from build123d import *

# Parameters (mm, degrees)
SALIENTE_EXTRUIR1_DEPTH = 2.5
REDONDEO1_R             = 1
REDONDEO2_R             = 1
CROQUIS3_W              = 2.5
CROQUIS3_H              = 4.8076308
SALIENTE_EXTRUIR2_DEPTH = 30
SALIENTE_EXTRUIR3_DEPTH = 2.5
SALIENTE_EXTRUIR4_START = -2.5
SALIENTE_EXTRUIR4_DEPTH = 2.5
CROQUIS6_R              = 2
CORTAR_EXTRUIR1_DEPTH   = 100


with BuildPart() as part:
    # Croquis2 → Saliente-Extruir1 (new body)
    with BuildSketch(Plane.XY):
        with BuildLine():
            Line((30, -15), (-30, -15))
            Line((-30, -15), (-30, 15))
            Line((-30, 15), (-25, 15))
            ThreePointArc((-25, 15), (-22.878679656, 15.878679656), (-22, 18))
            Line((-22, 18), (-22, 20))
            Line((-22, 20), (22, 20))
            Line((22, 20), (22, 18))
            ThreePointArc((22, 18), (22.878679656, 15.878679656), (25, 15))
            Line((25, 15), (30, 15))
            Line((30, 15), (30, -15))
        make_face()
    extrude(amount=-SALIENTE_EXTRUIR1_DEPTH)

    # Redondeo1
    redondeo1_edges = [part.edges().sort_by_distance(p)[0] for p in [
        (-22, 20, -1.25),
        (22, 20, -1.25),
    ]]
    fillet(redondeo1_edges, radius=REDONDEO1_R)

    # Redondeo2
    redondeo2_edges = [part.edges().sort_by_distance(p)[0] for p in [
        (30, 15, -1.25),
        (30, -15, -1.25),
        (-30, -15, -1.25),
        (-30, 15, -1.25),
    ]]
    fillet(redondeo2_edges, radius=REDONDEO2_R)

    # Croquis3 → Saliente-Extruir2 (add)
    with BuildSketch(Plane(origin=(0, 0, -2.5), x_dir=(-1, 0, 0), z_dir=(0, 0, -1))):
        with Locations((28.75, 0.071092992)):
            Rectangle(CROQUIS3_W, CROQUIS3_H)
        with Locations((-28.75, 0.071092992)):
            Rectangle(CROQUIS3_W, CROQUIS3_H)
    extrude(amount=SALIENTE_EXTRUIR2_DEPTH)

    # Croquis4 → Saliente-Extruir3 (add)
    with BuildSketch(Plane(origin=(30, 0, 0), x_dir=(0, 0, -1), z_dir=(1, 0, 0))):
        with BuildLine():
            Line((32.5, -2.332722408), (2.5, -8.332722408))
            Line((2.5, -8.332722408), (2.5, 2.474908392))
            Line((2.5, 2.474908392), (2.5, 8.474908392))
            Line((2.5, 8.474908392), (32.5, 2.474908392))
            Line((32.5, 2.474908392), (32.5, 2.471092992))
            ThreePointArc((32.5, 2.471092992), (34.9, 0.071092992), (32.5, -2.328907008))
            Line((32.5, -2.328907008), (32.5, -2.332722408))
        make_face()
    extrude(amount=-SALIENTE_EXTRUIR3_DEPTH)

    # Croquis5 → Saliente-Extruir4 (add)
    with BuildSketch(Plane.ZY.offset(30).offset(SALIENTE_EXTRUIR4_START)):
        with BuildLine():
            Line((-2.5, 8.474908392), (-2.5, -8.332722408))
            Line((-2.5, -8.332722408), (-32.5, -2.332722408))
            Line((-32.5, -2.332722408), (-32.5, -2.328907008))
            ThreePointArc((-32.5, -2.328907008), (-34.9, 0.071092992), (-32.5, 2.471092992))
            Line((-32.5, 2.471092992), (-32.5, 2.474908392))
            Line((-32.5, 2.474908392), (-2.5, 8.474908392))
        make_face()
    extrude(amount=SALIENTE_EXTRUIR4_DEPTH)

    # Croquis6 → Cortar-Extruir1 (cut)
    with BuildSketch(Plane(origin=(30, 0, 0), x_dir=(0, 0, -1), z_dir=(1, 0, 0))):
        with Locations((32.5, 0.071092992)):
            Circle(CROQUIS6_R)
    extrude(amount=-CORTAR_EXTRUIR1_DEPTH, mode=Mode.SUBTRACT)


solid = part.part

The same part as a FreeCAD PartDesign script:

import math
import FreeCAD as App
import Part
import Sketcher
from FreeCAD import Vector


def edges_at(feature, points):
    """Names of the edges that pass closest to the given points."""
    edges = feature.Shape.Edges
    near = lambda p: min(range(len(edges)), key=lambda i: edges[i].distToShape(Part.Vertex(*p))[0])
    return sorted({f"Edge{near(p) + 1}" for p in points})


def add_polygon(sketch, points):
    """Adds a closed chain of lines whose ends are joined by coincident constraints."""
    first, n = sketch.GeometryCount, len(points)
    for a, b in zip(points, points[1:] + points[:1]):
        sketch.addGeometry(Part.LineSegment(App.Vector(*a, 0), App.Vector(*b, 0)), False)
    for i in range(n):
        sketch.addConstraint(Sketcher.Constraint("Coincident", first + i, 2, first + (i + 1) % n, 1))

doc = App.newDocument("Part")
body = doc.addObject("PartDesign::Body", "Body")

sketch1 = body.newObject("Sketcher::SketchObject", "Sketch")
sketch1.AttachmentSupport = (doc.getObject("XY_Plane"), [""])
sketch1.MapMode = "FlatFace"
sketch1.addGeometry(Part.LineSegment(Vector(-30, -15, 0), Vector(30, -15, 0)), False)
sketch1.addGeometry(Part.LineSegment(Vector(30, -15, 0), Vector(30, 15, 0)), False)
sketch1.addGeometry(Part.LineSegment(Vector(30, 15, 0), Vector(25, 15, 0)), False)
sketch1.addGeometry(Part.ArcOfCircle(Part.Circle(Vector(25, 18, 0), Vector(0, 0, 1), 3), math.radians(180), math.radians(270)), False)
sketch1.addGeometry(Part.LineSegment(Vector(22, 18, 0), Vector(22, 20, 0)), False)
sketch1.addGeometry(Part.LineSegment(Vector(22, 20, 0), Vector(-22, 20, 0)), False)
sketch1.addGeometry(Part.LineSegment(Vector(-22, 20, 0), Vector(-22, 18, 0)), False)
sketch1.addGeometry(Part.ArcOfCircle(Part.Circle(Vector(-25, 18, 0), Vector(0, 0, 1), 3), math.radians(-90), math.radians(0)), False)
sketch1.addGeometry(Part.LineSegment(Vector(-25, 15, 0), Vector(-30, 15, 0)), False)
sketch1.addGeometry(Part.LineSegment(Vector(-30, 15, 0), Vector(-30, -15, 0)), False)
sketch1.addConstraint(Sketcher.Constraint("Coincident", 0, 2, 1, 1))
sketch1.addConstraint(Sketcher.Constraint("Coincident", 1, 2, 2, 1))
sketch1.addConstraint(Sketcher.Constraint("Tangent", 2, 2, 3, 2))
sketch1.addConstraint(Sketcher.Constraint("Tangent", 3, 1, 4, 1))
sketch1.addConstraint(Sketcher.Constraint("Coincident", 4, 2, 5, 1))
sketch1.addConstraint(Sketcher.Constraint("Coincident", 5, 2, 6, 1))
sketch1.addConstraint(Sketcher.Constraint("Tangent", 6, 2, 7, 2))
sketch1.addConstraint(Sketcher.Constraint("Tangent", 7, 1, 8, 1))
sketch1.addConstraint(Sketcher.Constraint("Coincident", 8, 2, 9, 1))
sketch1.addConstraint(Sketcher.Constraint("Coincident", 9, 2, 0, 1))
sketch1.addConstraint(Sketcher.Constraint("Horizontal", 0))
sketch1.addConstraint(Sketcher.Constraint("Vertical", 1))
sketch1.addConstraint(Sketcher.Constraint("Horizontal", 2))
sketch1.addConstraint(Sketcher.Constraint("Vertical", 4))
sketch1.addConstraint(Sketcher.Constraint("Horizontal", 5))
sketch1.addConstraint(Sketcher.Constraint("Vertical", 6))
sketch1.addConstraint(Sketcher.Constraint("Horizontal", 8))
sketch1.addConstraint(Sketcher.Constraint("Vertical", 9))
sketch1.addConstraint(Sketcher.Constraint("Equal", 3, 7))
sketch1.addConstraint(Sketcher.Constraint("Symmetric", 0, 2, 8, 2, -1, 1))
sketch1.addConstraint(Sketcher.Constraint("Symmetric", 3, 3, 7, 3, -2))
sketch1.addConstraint(Sketcher.Constraint("Radius", 3, 3.0))
sketch1.addConstraint(Sketcher.Constraint("DistanceX", 0, 1, 0, 2, 60.0))
sketch1.addConstraint(Sketcher.Constraint("DistanceX", 2, 2, 2, 1, 5.0))
sketch1.addConstraint(Sketcher.Constraint("DistanceY", 1, 1, 1, 2, 30.0))
sketch1.addConstraint(Sketcher.Constraint("DistanceY", 4, 1, 4, 2, 2.0))
pad1 = body.newObject("PartDesign::Pad", "Pad")
pad1.Profile = sketch1
pad1.Length = 2.5
pad1.Reversed = True
doc.recompute()

fillet = body.newObject("PartDesign::Fillet", "Fillet")
fillet.Base = (pad1, edges_at(pad1, [(-22, 20, -1.25), (22, 20, -1.25)]))
fillet.Radius = 1
doc.recompute()

fillet2 = body.newObject("PartDesign::Fillet", "Fillet001")
fillet2.Base = (fillet, edges_at(fillet, [
    (30, 15, -1.25),
    (30, -15, -1.25),
    (-30, -15, -1.25),
    (-30, 15, -1.25),
]))
fillet2.Radius = 1

sketch2 = body.newObject("Sketcher::SketchObject", "Sketch001")
sketch2.AttachmentSupport = (doc.getObject("XY_Plane"), [""])
sketch2.MapMode = "FlatFace"
sketch2.AttachmentOffset = App.Placement(Vector(0, 0, -2.5), App.Rotation())
add_polygon(sketch2, [(-27.5, 2.5), (-27.5, -2.3), (-30, -2.3), (-30, 2.5)])
add_polygon(sketch2, [(30, 2.5), (30, -2.3), (27.5, -2.3), (27.5, 2.5)])
sketch2.addConstraint(Sketcher.Constraint("Vertical", 0))
sketch2.addConstraint(Sketcher.Constraint("Horizontal", 1))
sketch2.addConstraint(Sketcher.Constraint("Vertical", 2))
sketch2.addConstraint(Sketcher.Constraint("Horizontal", 3))
sketch2.addConstraint(Sketcher.Constraint("Vertical", 4))
sketch2.addConstraint(Sketcher.Constraint("Horizontal", 5))
sketch2.addConstraint(Sketcher.Constraint("Vertical", 6))
sketch2.addConstraint(Sketcher.Constraint("Horizontal", 7))
sketch2.addConstraint(Sketcher.Constraint("Symmetric", 1, 2, 4, 2, -2))
sketch2.addConstraint(Sketcher.Constraint("Symmetric", 3, 2, 6, 2, -2))
sketch2.addConstraint(Sketcher.Constraint("DistanceX", 1, 2, 1, 1, 2.5))
sketch2.addConstraint(Sketcher.Constraint("DistanceX", 1, 2, -1, 1, 30.0))
sketch2.addConstraint(Sketcher.Constraint("DistanceY", 0, 2, 0, 1, 4.807631))
sketch2.addConstraint(Sketcher.Constraint("DistanceY", -1, 1, 2, 2, 2.474908))
pad2 = body.newObject("PartDesign::Pad", "Pad001")
pad2.Profile = sketch2
pad2.Length = 30
pad2.Reversed = True

sketch3 = body.newObject("Sketcher::SketchObject", "Sketch002")
sketch3.AttachmentSupport = (doc.getObject("YZ_Plane"), [""])
sketch3.MapMode = "FlatFace"
sketch3.AttachmentOffset = App.Placement(Vector(0, 0, 30), App.Rotation())
sketch3.addGeometry(Part.LineSegment(Vector(-8.3327, -2.5, 0), Vector(-2.3327, -32.5, 0)), False)
sketch3.addGeometry(Part.LineSegment(Vector(-2.3327, -32.5, 0), Vector(-2.3289, -32.5, 0)), False)
sketch3.addGeometry(Part.ArcOfCircle(Part.Circle(Vector(0.0711, -32.5, 0), Vector(0, 0, 1), 2.4), math.radians(180), math.radians(360)), False)
sketch3.addGeometry(Part.LineSegment(Vector(2.4711, -32.5, 0), Vector(2.4749, -32.5, 0)), False)
sketch3.addGeometry(Part.LineSegment(Vector(2.4749, -32.5, 0), Vector(8.4749, -2.5, 0)), False)
sketch3.addGeometry(Part.LineSegment(Vector(8.4749, -2.5, 0), Vector(-8.3327, -2.5, 0)), False)
sketch3.addConstraint(Sketcher.Constraint("Coincident", 0, 2, 1, 1))
sketch3.addConstraint(Sketcher.Constraint("Coincident", 1, 2, 2, 1))
sketch3.addConstraint(Sketcher.Constraint("Coincident", 2, 2, 3, 1))
sketch3.addConstraint(Sketcher.Constraint("Coincident", 3, 2, 4, 1))
sketch3.addConstraint(Sketcher.Constraint("Coincident", 4, 2, 5, 1))
sketch3.addConstraint(Sketcher.Constraint("Coincident", 5, 2, 0, 1))
sketch3.addConstraint(Sketcher.Constraint("Horizontal", 1))
sketch3.addConstraint(Sketcher.Constraint("Horizontal", 3))
sketch3.addConstraint(Sketcher.Constraint("Horizontal", 5))
sketch3.addConstraint(Sketcher.Constraint("Horizontal", 2, 3, 0, 2))
sketch3.addConstraint(Sketcher.Constraint("Horizontal", 1, 2, 2, 2))
sketch3.addConstraint(Sketcher.Constraint("Equal", 1, 3))
sketch3.addConstraint(Sketcher.Constraint("Equal", 0, 4))
sketch3.addConstraint(Sketcher.Constraint("Radius", 2, 2.4))
sketch3.addConstraint(Sketcher.Constraint("DistanceX", 3, 2, 4, 2, 6.0))
sketch3.addConstraint(Sketcher.Constraint("DistanceY", 3, 2, 4, 2, 30.0))
sketch3.addConstraint(Sketcher.Constraint("DistanceY", 2, 3, -1, 1, 32.5))
sketch3.addConstraint(Sketcher.Constraint("DistanceX", 5, 2, 5, 1, 16.807631))
sketch3.addConstraint(Sketcher.Constraint("DistanceX", -1, 1, 3, 2, 2.474908))
pad3 = body.newObject("PartDesign::Pad", "Pad002")
pad3.Profile = sketch3
pad3.Length = 2.5
pad3.Reversed = True

sketch4 = body.newObject("Sketcher::SketchObject", "Sketch003")
sketch4.AttachmentSupport = (doc.getObject("YZ_Plane"), [""])
sketch4.MapMode = "FlatFace"
sketch4.AttachmentOffset = App.Placement(Vector(0, 0, -27.5), App.Rotation())
sketch4.addGeometry(Part.LineSegment(Vector(-8.3327, -2.5, 0), Vector(8.4749, -2.5, 0)), False)
sketch4.addGeometry(Part.LineSegment(Vector(8.4749, -2.5, 0), Vector(2.4749, -32.5, 0)), False)
sketch4.addGeometry(Part.LineSegment(Vector(2.4749, -32.5, 0), Vector(2.4711, -32.5, 0)), False)
sketch4.addGeometry(Part.ArcOfCircle(Part.Circle(Vector(0.0711, -32.5, 0), Vector(0, 0, 1), 2.4), math.radians(180), math.radians(360)), False)
sketch4.addGeometry(Part.LineSegment(Vector(-2.3289, -32.5, 0), Vector(-2.3327, -32.5, 0)), False)
sketch4.addGeometry(Part.LineSegment(Vector(-2.3327, -32.5, 0), Vector(-8.3327, -2.5, 0)), False)
sketch4.addConstraint(Sketcher.Constraint("Coincident", 0, 2, 1, 1))
sketch4.addConstraint(Sketcher.Constraint("Coincident", 1, 2, 2, 1))
sketch4.addConstraint(Sketcher.Constraint("Coincident", 2, 2, 3, 2))
sketch4.addConstraint(Sketcher.Constraint("Coincident", 3, 1, 4, 1))
sketch4.addConstraint(Sketcher.Constraint("Coincident", 4, 2, 5, 1))
sketch4.addConstraint(Sketcher.Constraint("Coincident", 5, 2, 0, 1))
sketch4.addConstraint(Sketcher.Constraint("Horizontal", 0))
sketch4.addConstraint(Sketcher.Constraint("Horizontal", 2))
sketch4.addConstraint(Sketcher.Constraint("Horizontal", 4))
sketch4.addConstraint(Sketcher.Constraint("Horizontal", 3, 3, 1, 2))
sketch4.addConstraint(Sketcher.Constraint("Horizontal", 2, 2, 3, 1))
sketch4.addConstraint(Sketcher.Constraint("Equal", 2, 4))
sketch4.addConstraint(Sketcher.Constraint("Equal", 1, 5))
sketch4.addConstraint(Sketcher.Constraint("Radius", 3, 2.4))
sketch4.addConstraint(Sketcher.Constraint("DistanceY", 3, 3, 0, 2, 30.0))
sketch4.addConstraint(Sketcher.Constraint("DistanceX", 1, 2, 0, 2, 6.0))
sketch4.addConstraint(Sketcher.Constraint("DistanceY", 3, 3, -1, 1, 32.5))
sketch4.addConstraint(Sketcher.Constraint("DistanceX", 0, 1, 0, 2, 16.807631))
sketch4.addConstraint(Sketcher.Constraint("DistanceX", -1, 1, 0, 2, 8.474908))
pad4 = body.newObject("PartDesign::Pad", "Pad003")
pad4.Profile = sketch4
pad4.Length = 2.5
pad4.Reversed = True

sketch5 = body.newObject("Sketcher::SketchObject", "Sketch004")
sketch5.AttachmentSupport = (doc.getObject("YZ_Plane"), [""])
sketch5.MapMode = "FlatFace"
sketch5.AttachmentOffset = App.Placement(Vector(0, 0, 30), App.Rotation())
sketch5.addGeometry(Part.Circle(Vector(0.1, -32.5, 0), Vector(0, 0, 1), 2), False)
sketch5.addConstraint(Sketcher.Constraint("Diameter", 0, 4.0))
sketch5.addConstraint(Sketcher.Constraint("DistanceY", 0, 3, -1, 1, 32.5))
sketch5.addConstraint(Sketcher.Constraint("DistanceX", -1, 1, 0, 3, 0.071093))
pocket1 = body.newObject("PartDesign::Pocket", "Pocket")
pocket1.Profile = sketch5
pocket1.Length = 100

doc.recompute()
